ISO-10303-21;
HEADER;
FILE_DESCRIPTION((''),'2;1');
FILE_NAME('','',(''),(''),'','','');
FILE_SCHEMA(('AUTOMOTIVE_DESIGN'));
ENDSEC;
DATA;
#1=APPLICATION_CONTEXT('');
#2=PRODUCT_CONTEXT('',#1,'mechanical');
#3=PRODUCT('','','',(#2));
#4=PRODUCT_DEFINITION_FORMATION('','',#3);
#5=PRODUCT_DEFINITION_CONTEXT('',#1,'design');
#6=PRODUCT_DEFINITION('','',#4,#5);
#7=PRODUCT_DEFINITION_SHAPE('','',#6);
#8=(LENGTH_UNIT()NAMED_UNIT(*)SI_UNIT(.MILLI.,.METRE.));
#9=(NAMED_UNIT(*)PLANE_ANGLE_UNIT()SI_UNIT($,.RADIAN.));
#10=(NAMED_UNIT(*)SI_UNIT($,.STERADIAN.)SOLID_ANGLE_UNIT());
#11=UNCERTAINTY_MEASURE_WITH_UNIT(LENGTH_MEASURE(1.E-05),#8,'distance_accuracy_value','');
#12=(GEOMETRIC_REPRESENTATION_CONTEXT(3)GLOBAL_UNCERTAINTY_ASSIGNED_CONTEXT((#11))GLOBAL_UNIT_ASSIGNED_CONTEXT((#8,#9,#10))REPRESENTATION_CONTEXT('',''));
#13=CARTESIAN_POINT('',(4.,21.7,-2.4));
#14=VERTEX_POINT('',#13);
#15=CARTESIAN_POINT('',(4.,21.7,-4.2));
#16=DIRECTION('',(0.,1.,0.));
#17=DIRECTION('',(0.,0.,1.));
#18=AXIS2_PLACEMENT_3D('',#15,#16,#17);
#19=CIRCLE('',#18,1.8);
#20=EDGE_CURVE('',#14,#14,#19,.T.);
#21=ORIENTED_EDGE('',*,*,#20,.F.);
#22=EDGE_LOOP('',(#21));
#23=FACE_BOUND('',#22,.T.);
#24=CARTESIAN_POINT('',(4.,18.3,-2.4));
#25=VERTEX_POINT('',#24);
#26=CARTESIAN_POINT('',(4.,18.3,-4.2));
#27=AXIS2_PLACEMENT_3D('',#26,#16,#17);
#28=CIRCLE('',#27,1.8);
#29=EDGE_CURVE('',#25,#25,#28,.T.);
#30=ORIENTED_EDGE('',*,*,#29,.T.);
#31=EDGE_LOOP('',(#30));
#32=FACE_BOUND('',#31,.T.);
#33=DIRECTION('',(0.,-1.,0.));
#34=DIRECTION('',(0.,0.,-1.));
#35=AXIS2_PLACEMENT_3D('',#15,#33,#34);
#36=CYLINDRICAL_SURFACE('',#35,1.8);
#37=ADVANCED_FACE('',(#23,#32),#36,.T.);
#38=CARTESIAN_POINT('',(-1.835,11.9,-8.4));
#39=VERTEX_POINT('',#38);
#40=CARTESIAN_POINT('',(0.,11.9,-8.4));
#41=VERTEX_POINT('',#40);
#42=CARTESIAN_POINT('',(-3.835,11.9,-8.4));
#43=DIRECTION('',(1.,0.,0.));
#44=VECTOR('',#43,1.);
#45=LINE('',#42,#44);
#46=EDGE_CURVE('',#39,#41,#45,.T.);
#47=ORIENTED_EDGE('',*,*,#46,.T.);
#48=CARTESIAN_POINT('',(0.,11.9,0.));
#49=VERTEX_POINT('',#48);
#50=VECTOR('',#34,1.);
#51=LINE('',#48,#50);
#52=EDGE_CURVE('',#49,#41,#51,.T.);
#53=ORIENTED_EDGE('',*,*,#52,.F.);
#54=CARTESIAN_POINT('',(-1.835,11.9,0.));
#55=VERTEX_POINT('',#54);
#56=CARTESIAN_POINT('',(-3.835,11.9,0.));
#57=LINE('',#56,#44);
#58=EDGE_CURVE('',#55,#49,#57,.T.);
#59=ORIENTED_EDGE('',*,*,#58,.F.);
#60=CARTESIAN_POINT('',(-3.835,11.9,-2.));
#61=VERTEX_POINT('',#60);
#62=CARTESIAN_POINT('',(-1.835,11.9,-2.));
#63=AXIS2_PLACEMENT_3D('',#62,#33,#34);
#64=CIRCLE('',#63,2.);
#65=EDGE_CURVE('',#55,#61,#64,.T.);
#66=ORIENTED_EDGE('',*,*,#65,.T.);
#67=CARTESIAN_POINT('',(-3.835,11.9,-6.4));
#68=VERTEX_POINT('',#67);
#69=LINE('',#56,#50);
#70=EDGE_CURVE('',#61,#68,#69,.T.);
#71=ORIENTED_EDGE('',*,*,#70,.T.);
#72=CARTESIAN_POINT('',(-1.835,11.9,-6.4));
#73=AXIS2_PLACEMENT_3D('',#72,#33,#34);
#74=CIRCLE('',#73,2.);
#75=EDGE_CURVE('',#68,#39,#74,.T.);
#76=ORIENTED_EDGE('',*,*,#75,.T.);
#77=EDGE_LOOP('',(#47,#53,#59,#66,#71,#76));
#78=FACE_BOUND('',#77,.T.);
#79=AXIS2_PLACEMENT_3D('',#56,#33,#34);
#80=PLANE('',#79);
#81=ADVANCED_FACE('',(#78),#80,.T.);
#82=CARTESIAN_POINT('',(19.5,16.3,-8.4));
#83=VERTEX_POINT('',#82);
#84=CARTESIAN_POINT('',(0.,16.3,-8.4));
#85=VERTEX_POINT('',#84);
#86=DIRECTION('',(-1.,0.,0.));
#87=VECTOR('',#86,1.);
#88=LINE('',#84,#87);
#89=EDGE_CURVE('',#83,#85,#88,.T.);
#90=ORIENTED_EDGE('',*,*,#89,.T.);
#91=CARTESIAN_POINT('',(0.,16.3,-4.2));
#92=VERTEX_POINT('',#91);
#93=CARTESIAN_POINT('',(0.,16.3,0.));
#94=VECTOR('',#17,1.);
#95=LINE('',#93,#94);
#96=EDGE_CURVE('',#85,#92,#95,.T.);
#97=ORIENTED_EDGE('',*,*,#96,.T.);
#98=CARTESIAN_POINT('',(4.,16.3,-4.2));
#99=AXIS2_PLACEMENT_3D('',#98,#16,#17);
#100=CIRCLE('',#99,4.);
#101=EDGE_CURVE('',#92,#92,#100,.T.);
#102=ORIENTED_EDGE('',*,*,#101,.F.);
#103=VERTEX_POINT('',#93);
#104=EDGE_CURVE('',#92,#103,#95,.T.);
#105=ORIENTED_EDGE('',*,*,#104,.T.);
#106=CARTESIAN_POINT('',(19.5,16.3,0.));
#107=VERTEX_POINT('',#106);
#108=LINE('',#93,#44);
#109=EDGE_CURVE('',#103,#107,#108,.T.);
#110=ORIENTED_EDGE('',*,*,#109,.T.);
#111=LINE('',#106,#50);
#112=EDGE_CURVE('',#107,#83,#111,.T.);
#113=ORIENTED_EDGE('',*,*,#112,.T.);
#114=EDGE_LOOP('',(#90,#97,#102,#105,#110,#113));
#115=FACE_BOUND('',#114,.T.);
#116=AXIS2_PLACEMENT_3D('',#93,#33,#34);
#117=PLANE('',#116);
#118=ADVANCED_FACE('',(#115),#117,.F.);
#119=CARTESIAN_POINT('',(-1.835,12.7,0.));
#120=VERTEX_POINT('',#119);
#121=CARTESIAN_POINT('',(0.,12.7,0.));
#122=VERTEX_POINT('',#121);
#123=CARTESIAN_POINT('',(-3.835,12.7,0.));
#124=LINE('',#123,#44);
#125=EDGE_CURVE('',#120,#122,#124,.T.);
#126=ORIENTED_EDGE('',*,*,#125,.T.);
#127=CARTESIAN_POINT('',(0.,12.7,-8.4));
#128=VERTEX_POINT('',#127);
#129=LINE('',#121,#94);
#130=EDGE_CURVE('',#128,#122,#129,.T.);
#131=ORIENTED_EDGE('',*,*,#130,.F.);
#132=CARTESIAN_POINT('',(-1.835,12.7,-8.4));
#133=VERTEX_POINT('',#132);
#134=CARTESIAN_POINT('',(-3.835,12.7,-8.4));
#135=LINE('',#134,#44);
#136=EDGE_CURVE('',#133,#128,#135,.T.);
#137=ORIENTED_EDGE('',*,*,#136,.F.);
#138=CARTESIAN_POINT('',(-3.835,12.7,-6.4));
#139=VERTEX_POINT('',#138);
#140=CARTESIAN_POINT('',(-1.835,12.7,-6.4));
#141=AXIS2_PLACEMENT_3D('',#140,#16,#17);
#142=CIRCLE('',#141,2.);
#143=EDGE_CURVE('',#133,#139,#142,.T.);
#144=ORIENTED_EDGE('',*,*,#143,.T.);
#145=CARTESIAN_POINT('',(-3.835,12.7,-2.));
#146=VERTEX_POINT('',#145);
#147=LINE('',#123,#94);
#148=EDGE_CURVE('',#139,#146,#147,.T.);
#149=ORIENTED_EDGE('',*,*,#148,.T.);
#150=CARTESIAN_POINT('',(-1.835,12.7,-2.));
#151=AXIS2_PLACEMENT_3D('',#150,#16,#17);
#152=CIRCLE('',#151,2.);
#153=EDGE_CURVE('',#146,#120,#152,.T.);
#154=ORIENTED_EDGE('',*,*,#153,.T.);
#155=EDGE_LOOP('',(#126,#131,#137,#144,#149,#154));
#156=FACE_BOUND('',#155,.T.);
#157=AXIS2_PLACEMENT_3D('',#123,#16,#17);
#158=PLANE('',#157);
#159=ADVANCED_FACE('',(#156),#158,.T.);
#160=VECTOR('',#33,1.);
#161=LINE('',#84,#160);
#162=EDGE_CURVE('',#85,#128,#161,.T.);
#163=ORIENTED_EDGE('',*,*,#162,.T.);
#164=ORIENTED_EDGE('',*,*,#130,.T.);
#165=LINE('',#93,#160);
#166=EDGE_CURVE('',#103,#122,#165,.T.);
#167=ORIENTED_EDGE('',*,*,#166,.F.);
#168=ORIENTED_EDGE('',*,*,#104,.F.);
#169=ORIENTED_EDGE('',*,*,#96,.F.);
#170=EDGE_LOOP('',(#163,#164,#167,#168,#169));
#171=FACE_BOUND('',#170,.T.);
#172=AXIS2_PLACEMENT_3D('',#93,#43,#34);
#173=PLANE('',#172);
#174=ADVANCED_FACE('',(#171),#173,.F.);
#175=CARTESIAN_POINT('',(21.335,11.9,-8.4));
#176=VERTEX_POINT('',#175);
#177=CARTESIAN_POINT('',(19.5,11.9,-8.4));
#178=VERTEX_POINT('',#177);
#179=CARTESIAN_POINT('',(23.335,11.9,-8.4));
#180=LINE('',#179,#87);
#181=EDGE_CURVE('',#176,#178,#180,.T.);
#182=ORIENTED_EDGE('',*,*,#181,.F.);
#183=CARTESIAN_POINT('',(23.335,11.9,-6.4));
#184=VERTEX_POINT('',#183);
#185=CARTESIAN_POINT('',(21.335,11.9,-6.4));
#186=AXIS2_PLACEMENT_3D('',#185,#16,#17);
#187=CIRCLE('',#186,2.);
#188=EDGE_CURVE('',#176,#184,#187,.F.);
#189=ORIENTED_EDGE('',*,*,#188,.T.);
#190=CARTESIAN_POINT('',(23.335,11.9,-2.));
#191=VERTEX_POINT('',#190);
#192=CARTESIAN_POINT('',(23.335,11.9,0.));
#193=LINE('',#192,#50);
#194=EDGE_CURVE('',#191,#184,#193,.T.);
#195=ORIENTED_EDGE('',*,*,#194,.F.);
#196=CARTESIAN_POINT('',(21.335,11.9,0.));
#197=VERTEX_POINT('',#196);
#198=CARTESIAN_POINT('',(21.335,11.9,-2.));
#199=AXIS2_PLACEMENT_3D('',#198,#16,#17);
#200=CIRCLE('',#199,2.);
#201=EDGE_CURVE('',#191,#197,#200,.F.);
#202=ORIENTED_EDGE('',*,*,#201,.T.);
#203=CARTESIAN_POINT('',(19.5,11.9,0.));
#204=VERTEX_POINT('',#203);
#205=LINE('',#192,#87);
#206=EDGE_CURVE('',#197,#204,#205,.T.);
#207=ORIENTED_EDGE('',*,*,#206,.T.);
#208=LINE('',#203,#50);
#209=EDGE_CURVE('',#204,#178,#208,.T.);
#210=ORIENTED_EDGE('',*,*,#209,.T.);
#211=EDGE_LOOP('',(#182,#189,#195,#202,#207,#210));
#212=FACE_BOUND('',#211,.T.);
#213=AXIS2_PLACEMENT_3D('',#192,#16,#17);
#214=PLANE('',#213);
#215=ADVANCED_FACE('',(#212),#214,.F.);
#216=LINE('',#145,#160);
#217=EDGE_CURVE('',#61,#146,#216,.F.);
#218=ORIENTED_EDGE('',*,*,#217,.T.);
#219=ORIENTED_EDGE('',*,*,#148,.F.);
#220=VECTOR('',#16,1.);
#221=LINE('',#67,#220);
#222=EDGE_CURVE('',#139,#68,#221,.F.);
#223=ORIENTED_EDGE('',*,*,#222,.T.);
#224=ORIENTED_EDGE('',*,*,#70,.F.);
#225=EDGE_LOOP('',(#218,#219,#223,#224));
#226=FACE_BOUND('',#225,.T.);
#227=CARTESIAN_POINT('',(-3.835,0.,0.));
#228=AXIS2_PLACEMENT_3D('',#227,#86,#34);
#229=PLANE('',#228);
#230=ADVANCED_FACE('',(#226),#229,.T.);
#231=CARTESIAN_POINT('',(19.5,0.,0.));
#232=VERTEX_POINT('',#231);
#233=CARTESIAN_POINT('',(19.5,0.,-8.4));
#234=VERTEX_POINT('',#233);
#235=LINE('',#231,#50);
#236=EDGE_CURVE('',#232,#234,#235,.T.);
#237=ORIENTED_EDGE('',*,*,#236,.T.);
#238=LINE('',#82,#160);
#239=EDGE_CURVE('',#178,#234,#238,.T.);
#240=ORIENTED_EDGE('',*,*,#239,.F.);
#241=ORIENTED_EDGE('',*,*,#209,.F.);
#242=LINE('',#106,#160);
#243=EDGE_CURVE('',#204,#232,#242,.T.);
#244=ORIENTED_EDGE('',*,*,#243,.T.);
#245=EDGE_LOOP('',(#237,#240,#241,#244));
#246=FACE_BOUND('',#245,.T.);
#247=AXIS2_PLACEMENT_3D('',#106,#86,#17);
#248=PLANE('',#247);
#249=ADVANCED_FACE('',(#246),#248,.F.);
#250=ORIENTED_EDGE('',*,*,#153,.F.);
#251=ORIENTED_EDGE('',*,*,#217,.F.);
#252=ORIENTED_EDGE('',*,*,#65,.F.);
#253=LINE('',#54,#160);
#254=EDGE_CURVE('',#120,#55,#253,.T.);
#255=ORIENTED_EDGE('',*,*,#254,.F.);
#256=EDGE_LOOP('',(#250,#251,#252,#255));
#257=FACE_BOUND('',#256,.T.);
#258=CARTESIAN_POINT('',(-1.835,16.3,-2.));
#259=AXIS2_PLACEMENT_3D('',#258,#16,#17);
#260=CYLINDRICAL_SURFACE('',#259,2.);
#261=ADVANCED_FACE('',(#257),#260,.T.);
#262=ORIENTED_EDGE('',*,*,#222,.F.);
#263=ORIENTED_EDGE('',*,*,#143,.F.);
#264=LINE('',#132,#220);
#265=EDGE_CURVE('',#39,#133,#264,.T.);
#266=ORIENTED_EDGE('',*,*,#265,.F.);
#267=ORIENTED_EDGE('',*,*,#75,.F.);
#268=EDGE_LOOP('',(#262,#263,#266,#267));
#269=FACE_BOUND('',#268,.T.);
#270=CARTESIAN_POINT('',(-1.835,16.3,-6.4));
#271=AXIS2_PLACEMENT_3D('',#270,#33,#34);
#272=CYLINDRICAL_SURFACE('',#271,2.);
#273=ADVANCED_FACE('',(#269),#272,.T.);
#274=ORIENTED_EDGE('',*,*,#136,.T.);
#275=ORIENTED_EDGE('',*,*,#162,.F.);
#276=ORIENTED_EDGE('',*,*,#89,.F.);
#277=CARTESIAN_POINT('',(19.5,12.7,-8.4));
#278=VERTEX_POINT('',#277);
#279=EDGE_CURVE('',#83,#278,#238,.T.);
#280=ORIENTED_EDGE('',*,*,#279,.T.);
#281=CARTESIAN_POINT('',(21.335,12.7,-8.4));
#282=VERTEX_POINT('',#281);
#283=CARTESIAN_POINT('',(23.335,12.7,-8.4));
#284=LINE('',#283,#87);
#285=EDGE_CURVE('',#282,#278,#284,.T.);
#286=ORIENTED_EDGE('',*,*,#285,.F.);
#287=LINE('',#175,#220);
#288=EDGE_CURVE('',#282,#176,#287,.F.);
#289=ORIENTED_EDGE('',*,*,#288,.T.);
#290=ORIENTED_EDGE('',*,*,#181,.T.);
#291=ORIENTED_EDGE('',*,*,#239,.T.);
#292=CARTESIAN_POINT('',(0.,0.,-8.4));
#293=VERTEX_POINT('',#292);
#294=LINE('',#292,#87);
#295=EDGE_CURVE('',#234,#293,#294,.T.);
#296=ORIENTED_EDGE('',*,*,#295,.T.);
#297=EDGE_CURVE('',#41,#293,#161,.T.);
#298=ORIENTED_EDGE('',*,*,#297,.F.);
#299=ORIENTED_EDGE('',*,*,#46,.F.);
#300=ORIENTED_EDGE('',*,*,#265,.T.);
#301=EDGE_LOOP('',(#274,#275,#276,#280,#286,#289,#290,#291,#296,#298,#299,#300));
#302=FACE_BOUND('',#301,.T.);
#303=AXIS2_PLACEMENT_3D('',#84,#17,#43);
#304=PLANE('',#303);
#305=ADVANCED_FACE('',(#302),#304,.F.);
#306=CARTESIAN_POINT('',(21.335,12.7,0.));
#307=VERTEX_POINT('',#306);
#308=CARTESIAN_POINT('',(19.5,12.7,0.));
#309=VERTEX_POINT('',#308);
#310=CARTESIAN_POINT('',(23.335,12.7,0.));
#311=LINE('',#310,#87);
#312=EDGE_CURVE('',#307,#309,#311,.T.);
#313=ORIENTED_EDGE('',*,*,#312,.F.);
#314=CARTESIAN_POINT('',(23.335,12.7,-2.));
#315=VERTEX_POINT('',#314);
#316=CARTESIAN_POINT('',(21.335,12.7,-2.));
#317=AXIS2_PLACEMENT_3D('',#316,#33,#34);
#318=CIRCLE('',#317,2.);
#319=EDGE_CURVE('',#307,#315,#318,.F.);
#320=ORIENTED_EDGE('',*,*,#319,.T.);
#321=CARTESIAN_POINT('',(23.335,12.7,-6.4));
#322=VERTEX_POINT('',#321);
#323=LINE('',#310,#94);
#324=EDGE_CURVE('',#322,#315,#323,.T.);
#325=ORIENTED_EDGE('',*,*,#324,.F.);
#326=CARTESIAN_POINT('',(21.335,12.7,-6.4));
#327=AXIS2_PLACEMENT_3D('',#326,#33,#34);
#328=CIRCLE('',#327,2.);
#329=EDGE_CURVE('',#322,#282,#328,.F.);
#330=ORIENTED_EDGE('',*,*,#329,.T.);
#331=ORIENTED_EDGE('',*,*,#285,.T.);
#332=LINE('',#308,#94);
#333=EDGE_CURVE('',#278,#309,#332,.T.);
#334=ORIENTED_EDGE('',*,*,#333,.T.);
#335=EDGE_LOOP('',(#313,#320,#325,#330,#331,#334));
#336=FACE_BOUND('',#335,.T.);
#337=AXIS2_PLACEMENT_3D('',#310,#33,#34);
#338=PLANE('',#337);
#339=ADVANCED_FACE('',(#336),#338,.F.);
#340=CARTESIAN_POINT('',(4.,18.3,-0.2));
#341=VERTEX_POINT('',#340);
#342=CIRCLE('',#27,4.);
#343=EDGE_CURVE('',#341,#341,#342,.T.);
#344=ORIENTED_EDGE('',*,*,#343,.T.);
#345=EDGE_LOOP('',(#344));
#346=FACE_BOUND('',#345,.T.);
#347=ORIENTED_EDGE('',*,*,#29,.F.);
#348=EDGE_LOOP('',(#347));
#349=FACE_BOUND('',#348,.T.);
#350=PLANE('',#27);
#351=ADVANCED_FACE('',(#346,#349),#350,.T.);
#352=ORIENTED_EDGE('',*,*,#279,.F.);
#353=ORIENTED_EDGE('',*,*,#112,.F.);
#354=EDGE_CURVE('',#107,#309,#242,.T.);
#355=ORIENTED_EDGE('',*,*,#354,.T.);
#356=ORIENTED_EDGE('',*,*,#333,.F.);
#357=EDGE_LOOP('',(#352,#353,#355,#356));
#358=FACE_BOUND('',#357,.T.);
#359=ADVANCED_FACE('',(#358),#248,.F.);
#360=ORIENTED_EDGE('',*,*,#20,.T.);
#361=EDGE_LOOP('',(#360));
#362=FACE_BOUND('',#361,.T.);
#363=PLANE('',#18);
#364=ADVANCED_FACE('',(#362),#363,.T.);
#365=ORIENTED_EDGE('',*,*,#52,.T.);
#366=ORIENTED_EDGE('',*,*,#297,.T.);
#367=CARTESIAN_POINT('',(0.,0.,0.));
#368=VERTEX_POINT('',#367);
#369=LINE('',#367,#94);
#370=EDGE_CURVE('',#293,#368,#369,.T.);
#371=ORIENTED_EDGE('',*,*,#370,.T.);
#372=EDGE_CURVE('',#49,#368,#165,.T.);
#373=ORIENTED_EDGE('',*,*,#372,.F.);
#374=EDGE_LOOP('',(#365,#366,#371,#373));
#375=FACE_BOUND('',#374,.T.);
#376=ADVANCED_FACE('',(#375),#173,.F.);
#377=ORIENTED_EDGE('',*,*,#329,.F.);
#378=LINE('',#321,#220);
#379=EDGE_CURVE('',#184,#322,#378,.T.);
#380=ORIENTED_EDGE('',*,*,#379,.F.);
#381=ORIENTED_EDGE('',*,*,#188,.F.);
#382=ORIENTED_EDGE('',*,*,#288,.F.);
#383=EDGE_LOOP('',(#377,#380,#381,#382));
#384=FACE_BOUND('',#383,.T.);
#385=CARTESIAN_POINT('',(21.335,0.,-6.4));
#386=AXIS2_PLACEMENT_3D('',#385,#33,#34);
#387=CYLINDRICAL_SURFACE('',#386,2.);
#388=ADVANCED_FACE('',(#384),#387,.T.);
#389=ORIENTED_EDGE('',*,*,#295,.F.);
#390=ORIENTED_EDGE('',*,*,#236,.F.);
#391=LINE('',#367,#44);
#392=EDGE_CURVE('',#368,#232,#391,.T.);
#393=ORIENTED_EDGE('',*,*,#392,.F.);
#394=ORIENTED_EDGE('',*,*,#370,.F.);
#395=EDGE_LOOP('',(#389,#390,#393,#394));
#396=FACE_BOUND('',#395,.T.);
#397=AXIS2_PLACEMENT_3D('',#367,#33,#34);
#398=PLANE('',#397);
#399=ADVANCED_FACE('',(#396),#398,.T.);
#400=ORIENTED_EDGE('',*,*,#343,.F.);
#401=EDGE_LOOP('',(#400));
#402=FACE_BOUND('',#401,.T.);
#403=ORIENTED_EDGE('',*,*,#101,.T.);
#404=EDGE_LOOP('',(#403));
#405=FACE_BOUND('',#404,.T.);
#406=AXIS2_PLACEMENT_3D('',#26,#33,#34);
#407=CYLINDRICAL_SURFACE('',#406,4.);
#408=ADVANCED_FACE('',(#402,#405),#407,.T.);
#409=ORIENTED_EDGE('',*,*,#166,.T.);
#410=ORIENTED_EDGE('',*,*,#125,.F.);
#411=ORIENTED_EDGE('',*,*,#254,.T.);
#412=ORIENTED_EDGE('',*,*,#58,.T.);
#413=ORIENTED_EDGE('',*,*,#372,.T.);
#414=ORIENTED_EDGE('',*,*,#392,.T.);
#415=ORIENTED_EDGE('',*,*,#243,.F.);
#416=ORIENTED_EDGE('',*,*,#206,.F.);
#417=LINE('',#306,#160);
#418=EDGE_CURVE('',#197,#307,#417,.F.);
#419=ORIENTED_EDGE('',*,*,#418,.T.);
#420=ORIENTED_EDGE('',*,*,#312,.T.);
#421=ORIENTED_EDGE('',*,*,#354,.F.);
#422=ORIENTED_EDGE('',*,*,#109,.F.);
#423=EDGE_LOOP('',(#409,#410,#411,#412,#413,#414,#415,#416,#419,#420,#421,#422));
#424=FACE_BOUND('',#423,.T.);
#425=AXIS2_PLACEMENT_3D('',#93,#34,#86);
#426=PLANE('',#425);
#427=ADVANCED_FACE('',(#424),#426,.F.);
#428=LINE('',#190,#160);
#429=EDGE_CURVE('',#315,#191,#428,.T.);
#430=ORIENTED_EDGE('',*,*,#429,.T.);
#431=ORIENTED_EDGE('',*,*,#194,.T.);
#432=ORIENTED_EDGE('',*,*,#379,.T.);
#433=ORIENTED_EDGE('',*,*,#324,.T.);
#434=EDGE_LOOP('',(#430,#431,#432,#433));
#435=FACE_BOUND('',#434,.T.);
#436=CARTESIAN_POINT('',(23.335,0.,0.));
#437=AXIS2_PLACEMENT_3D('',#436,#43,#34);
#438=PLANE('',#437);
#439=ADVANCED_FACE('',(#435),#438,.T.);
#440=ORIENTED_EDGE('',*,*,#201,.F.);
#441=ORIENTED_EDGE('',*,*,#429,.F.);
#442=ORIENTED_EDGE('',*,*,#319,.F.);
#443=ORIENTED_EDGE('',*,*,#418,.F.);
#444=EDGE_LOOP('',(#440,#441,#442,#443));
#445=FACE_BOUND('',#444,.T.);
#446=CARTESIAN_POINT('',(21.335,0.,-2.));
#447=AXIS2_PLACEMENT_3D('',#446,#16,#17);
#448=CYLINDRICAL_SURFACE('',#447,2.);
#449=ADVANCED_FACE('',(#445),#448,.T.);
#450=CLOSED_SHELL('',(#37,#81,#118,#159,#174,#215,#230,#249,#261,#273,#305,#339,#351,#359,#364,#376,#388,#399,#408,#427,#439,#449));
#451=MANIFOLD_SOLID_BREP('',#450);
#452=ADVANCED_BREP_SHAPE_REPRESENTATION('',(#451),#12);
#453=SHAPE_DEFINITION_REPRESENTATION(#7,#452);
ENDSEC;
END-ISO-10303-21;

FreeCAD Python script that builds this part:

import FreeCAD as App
import Part
import Sketcher
from FreeCAD import Vector
Q = App.Units.Quantity


def edges_at(feature, points):
    """Names of the edges that pass closest to the given points."""
    edges = feature.Shape.Edges
    near = lambda p: min(range(len(edges)), key=lambda i: edges[i].distToShape(Part.Vertex(*p))[0])
    return sorted({f"Edge{near(p) + 1}" for p in points})

doc = App.newDocument("Part")
body = doc.addObject("PartDesign::Body", "Body")

# Sketch on XZ plane
sketch1 = doc.addObject("Sketcher::SketchObject", "Sketch")
body.addObject(sketch1)
sketch1.AttachmentSupport = (doc.XZ_Plane, [""])
sketch1.MapMode = "FlatFace"
sketch1.addGeometry(Part.LineSegment(Vector(0, -8, 0), Vector(0, 0, 0)), False)
sketch1.addGeometry(Part.LineSegment(Vector(0, 0, 0), Vector(20, 0, 0)), False)
sketch1.addGeometry(Part.LineSegment(Vector(20, 0, 0), Vector(20, -8, 0)), False)
sketch1.addGeometry(Part.LineSegment(Vector(20, -8, 0), Vector(0, -8, 0)), False)
sketch1.addConstraint(Sketcher.Constraint("Coincident", 0, 2, 1, 1))
sketch1.addConstraint(Sketcher.Constraint("Coincident", 1, 2, 2, 1))
sketch1.addConstraint(Sketcher.Constraint("Coincident", 2, 2, 3, 1))
sketch1.addConstraint(Sketcher.Constraint("Coincident", 3, 2, 0, 1))
sketch1.addConstraint(Sketcher.Constraint("Vertical", 0))
sketch1.addConstraint(Sketcher.Constraint("Horizontal", 1))
sketch1.addConstraint(Sketcher.Constraint("Vertical", 2))
sketch1.addConstraint(Sketcher.Constraint("Horizontal", 3))
sketch1.addConstraint(Sketcher.Constraint("Coincident", 0, 2, -1, 1))
sketch1.addConstraint(Sketcher.Constraint("DistanceX", 1, 1, 1, 2, Q("19.5 mm")))
sketch1.addConstraint(Sketcher.Constraint("DistanceY", 0, 1, 0, 2, Q("8.4 mm")))
pad1 = doc.addObject("PartDesign::Pad", "Pad")
body.addObject(pad1)
pad1.Profile = sketch1
pad1.Length = 16.3
pad1.Reversed = True

# Sketch on XZ plane
sketch2 = doc.addObject("Sketcher::SketchObject", "Sketch001")
body.addObject(sketch2)
sketch2.AttachmentSupport = (doc.XZ_Plane, [""])
sketch2.MapMode = "FlatFace"
sketch2.AttachmentOffset = App.Placement(Vector(0, 0, -16.3), App.Rotation())
sketch2.addGeometry(Part.Circle(Vector(4, -4.2, 0), Vector(0, 0, 1), 4), False)
sketch2.addConstraint(Sketcher.Constraint("Diameter", 0, Q("8 mm")))
sketch2.addConstraint(Sketcher.Constraint("DistanceX", -1, 1, 0, 3, Q("4 mm")))
sketch2.addConstraint(Sketcher.Constraint("DistanceY", 0, 3, -1, 1, Q("4.2 mm")))
pad2 = doc.addObject("PartDesign::Pad", "Pad001")
body.addObject(pad2)
pad2.Profile = sketch2
pad2.Length = 2
pad2.Reversed = True

# Sketch on YZ plane
sketch3 = doc.addObject("Sketcher::SketchObject", "Sketch002")
body.addObject(sketch3)
sketch3.AttachmentSupport = (doc.YZ_Plane, [""])
sketch3.MapMode = "FlatFace"
sketch3.AttachmentOffset = App.Placement(Vector(0, 0, 19.5), App.Rotation())
sketch3.addGeometry(Part.LineSegment(Vector(12.7, 0, 0), Vector(11.9, 0, 0)), False)
sketch3.addGeometry(Part.LineSegment(Vector(11.9, 0, 0), Vector(11.9, -8.4, 0)), False)
sketch3.addGeometry(Part.LineSegment(Vector(11.9, -8.4, 0), Vector(12.7, -8.4, 0)), False)
sketch3.addGeometry(Part.LineSegment(Vector(12.7, -8.4, 0), Vector(12.7, 0, 0)), False)
sketch3.addConstraint(Sketcher.Constraint("Coincident", 0, 2, 1, 1))
sketch3.addConstraint(Sketcher.Constraint("Coincident", 1, 2, 2, 1))
sketch3.addConstraint(Sketcher.Constraint("Coincident", 2, 2, 3, 1))
sketch3.addConstraint(Sketcher.Constraint("Coincident", 3, 2, 0, 1))
sketch3.addConstraint(Sketcher.Constraint("Horizontal", 0))
sketch3.addConstraint(Sketcher.Constraint("Vertical", 1))
sketch3.addConstraint(Sketcher.Constraint("Horizontal", 2))
sketch3.addConstraint(Sketcher.Constraint("Vertical", 3))
sketch3.addConstraint(Sketcher.Constraint("PointOnObject", 0, 2, -1))
sketch3.addConstraint(Sketcher.Constraint("DistanceX", 0, 2, 0, 1, Q("0.8 mm")))
sketch3.addConstraint(Sketcher.Constraint("DistanceY", 1, 2, 1, 1, Q("8.4 mm")))
sketch3.addConstraint(Sketcher.Constraint("DistanceX", -1, 1, 0, 2, Q("11.9 mm")))
pad3 = doc.addObject("PartDesign::Pad", "Pad002")
body.addObject(pad3)
pad3.Profile = sketch3
pad3.Length = 3.835
doc.recompute()

fillet = doc.addObject("PartDesign::Fillet", "Fillet")
body.addObject(fillet)
fillet.Base = (pad3, edges_at(pad3, [(23.335, 12.3, 0), (23.335, 12.3, -8.4)]))
fillet.Radius = 2
doc.recompute()

datumplane = doc.addObject("PartDesign::Plane", "DatumPlane")
body.addObject(datumplane)
datumplane.AttachmentSupport = (doc.YZ_Plane, [""])
datumplane.MapMode = "FlatFace"
datumplane.AttachmentOffset = App.Placement(Vector(0, 0, 9.75), App.Rotation())
mirrored = doc.addObject("PartDesign::Mirrored", "Mirrored")
body.addObject(mirrored)
mirrored.Originals = [pad3]
mirrored.MirrorPlane = (datumplane, [""])
body.Tip = mirrored
doc.recompute()

fillet2 = doc.addObject("PartDesign::Fillet", "Fillet001")
body.addObject(fillet2)
fillet2.Base = (mirrored, edges_at(mirrored, [(-3.835, 12.3, 0), (-3.835, 12.3, -8.4)]))
fillet2.Radius = 2

# Sketch on XZ plane
sketch4 = doc.addObject("Sketcher::SketchObject", "Sketch003")
body.addObject(sketch4)
sketch4.AttachmentSupport = (doc.XZ_Plane, [""])
sketch4.MapMode = "FlatFace"
sketch4.AttachmentOffset = App.Placement(Vector(0, 0, -18.3), App.Rotation())
sketch4.addGeometry(Part.Circle(Vector(4, -4.2, 0), Vector(0, 0, 1), 1.8), False)
sketch4.addConstraint(Sketcher.Constraint("Diameter", 0, Q("3.6 mm")))
sketch4.addConstraint(Sketcher.Constraint("DistanceX", -1, 1, 0, 3, Q("4 mm")))
sketch4.addConstraint(Sketcher.Constraint("DistanceY", 0, 3, -1, 1, Q("4.2 mm")))
pad4 = doc.addObject("PartDesign::Pad", "Pad003")
body.addObject(pad4)
pad4.Profile = sketch4
pad4.Length = 3.4
pad4.Reversed = True

doc.recompute()
